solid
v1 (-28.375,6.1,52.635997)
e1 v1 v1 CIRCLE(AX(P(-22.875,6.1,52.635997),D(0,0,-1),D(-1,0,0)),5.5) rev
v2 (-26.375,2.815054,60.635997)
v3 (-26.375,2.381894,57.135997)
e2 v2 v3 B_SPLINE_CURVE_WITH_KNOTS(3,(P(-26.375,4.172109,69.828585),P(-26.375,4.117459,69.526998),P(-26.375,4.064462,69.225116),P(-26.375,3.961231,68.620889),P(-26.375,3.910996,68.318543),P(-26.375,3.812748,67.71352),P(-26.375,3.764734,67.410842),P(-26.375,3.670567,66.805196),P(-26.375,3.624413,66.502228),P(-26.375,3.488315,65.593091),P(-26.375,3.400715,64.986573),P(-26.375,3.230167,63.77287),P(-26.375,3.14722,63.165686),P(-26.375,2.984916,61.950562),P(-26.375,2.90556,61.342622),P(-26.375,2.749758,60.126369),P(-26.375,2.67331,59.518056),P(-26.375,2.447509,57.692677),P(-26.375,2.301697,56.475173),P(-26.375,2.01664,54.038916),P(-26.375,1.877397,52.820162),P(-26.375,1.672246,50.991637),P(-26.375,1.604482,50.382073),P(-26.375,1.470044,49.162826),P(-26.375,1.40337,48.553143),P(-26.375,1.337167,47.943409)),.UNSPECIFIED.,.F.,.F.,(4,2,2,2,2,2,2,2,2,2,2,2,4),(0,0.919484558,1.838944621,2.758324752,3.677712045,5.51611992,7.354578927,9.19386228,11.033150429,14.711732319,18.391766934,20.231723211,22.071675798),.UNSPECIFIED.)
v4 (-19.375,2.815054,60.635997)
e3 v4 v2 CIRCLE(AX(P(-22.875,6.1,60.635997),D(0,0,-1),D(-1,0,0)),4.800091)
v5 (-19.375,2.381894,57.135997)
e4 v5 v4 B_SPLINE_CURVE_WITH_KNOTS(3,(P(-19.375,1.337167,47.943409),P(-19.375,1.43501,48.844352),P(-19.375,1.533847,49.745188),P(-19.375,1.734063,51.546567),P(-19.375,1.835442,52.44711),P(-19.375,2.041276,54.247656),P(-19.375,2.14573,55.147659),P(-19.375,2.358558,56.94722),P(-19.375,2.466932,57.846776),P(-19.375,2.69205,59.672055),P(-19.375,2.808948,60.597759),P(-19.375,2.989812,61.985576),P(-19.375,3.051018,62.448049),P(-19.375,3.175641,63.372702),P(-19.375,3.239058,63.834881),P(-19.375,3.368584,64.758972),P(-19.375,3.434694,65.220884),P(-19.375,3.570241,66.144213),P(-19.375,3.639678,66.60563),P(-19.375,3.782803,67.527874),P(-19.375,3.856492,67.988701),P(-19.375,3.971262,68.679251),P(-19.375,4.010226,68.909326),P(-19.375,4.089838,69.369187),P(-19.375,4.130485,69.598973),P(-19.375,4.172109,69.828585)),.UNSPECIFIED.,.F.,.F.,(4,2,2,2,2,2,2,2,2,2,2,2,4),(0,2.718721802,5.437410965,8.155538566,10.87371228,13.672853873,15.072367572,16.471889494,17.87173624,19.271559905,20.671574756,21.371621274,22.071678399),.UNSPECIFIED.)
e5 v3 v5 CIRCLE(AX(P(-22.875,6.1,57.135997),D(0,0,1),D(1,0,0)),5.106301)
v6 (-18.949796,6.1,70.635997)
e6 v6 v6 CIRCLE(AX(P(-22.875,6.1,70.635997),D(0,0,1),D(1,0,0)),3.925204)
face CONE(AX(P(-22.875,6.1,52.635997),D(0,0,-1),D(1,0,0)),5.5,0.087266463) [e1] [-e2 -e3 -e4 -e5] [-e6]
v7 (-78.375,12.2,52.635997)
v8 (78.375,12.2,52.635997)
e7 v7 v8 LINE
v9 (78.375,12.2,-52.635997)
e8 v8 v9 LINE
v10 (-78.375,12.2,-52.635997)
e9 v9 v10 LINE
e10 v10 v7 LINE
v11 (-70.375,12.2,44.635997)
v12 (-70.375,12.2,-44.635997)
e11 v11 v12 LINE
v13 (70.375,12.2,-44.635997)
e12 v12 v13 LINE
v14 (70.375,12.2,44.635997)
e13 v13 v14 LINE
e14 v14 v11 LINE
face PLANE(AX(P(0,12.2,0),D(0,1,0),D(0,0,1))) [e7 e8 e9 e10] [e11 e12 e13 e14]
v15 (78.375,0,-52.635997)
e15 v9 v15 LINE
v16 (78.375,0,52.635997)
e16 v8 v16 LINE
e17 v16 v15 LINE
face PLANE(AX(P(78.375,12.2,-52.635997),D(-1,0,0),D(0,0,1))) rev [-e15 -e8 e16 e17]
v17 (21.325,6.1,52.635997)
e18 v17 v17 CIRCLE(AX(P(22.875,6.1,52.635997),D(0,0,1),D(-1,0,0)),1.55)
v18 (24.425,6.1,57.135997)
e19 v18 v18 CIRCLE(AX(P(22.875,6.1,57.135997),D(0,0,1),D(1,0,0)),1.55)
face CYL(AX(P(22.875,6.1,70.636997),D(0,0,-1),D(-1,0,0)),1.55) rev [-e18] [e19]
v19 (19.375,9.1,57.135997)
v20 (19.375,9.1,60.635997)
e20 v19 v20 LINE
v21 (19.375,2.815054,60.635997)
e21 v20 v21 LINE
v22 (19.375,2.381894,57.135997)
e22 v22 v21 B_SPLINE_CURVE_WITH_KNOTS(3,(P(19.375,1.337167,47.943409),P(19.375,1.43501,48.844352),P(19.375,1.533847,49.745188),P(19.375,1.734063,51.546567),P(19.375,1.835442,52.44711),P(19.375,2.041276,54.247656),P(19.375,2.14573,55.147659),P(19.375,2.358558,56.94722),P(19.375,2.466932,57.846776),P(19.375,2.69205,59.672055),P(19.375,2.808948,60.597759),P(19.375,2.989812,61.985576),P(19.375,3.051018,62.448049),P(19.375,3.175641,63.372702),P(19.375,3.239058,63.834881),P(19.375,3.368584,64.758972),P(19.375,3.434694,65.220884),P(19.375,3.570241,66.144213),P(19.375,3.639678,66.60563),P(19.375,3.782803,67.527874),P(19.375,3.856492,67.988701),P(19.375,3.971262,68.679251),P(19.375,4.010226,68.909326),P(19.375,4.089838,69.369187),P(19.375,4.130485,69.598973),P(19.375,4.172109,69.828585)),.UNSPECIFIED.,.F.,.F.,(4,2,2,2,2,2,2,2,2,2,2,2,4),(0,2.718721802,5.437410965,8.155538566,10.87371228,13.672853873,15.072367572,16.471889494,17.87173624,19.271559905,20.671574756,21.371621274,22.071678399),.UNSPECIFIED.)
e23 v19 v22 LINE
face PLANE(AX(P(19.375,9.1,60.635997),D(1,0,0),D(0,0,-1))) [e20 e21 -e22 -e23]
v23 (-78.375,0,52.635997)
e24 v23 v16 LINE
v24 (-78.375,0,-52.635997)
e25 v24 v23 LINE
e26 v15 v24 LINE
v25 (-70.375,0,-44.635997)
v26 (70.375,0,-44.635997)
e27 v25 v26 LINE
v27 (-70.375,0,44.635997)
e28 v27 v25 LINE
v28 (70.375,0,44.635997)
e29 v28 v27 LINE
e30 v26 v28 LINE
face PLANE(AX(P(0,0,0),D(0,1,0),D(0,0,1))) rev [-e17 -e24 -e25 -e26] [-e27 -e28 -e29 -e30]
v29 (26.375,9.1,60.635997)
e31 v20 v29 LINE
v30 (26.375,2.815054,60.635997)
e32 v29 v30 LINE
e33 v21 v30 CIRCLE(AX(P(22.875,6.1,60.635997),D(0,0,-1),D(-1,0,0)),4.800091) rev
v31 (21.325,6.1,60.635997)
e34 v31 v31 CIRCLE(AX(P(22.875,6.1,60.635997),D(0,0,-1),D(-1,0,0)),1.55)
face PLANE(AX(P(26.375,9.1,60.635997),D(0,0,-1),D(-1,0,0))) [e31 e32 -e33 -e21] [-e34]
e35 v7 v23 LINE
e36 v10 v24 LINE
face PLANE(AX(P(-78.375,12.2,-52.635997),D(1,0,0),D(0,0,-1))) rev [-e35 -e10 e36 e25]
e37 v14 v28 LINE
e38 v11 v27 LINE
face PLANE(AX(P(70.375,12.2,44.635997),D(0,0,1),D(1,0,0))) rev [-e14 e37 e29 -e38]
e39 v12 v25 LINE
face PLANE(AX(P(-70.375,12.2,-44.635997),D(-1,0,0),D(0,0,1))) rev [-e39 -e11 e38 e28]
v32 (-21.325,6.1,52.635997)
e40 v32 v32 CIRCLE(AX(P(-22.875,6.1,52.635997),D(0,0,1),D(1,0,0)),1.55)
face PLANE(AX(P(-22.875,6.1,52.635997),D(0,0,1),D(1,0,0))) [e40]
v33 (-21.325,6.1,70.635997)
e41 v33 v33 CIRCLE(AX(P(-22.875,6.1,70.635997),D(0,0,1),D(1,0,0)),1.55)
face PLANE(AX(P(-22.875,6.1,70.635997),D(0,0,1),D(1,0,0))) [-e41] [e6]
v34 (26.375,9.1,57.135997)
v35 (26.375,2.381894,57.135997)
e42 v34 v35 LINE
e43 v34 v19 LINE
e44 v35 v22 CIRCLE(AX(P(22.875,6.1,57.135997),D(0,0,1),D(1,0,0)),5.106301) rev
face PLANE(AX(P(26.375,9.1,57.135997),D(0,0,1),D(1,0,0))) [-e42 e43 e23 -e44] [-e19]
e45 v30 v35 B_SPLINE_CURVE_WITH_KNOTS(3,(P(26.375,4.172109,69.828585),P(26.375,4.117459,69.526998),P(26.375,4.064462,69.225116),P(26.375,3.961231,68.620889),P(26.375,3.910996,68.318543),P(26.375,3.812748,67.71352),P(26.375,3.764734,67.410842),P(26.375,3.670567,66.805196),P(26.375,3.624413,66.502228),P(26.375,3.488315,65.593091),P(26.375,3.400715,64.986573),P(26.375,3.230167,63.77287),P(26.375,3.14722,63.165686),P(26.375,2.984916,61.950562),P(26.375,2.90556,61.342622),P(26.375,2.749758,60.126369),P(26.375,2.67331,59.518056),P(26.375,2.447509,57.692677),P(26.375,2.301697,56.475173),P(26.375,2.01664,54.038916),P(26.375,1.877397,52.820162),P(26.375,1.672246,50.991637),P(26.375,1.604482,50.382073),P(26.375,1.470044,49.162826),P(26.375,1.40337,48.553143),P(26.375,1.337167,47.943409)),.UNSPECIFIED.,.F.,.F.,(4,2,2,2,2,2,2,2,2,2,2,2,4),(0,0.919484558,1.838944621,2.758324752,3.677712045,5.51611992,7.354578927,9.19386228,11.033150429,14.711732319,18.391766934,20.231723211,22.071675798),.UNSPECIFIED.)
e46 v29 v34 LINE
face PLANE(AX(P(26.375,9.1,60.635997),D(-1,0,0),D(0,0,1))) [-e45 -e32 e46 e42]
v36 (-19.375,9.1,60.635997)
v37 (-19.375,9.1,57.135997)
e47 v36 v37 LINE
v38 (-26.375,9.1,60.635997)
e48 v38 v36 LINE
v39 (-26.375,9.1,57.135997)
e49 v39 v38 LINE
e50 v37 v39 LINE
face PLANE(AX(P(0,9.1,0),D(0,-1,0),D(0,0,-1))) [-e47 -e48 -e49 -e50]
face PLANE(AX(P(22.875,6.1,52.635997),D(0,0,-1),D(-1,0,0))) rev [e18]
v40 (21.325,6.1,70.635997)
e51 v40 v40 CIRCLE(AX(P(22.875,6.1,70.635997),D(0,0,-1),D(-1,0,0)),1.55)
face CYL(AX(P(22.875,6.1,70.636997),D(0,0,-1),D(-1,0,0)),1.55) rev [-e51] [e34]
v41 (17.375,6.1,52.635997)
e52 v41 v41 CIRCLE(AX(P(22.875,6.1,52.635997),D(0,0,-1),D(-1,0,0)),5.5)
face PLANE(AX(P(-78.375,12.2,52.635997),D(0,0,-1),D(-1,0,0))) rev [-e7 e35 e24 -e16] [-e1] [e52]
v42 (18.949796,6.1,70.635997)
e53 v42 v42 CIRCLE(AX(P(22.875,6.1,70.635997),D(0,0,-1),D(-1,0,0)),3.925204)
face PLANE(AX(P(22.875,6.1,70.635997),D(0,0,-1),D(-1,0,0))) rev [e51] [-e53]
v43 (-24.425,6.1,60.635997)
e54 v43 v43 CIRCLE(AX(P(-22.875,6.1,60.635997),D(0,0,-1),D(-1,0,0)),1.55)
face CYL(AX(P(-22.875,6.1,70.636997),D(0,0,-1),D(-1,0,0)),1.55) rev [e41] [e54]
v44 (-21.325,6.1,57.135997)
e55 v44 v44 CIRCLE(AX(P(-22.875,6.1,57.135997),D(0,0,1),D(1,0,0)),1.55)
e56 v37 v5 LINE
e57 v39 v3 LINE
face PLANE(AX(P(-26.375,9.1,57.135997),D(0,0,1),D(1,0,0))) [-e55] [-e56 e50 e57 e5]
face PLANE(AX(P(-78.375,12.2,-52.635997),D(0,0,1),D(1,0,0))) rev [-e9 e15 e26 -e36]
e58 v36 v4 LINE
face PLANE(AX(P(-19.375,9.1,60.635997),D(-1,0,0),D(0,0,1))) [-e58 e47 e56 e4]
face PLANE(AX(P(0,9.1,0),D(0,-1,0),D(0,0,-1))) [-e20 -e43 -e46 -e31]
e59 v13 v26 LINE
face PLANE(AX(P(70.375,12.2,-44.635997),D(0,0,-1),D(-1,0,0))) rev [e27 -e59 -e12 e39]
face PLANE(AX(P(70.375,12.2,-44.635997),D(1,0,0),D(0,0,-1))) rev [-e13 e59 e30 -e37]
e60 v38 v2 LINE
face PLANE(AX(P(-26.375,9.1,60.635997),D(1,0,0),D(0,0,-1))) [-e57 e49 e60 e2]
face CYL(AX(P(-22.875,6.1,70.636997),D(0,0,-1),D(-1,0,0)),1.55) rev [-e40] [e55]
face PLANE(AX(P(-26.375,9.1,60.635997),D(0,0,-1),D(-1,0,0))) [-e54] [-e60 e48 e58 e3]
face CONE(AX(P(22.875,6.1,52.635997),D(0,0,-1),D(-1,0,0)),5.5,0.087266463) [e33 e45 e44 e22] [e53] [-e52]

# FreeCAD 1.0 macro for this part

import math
import FreeCAD as App
import Part
import Sketcher


def add_polygon(sketch, points):
    """Adds a closed chain of lines whose ends are joined by coincident constraints."""
    first, n = sketch.GeometryCount, len(points)
    for a, b in zip(points, points[1:] + points[:1]):
        sketch.addGeometry(Part.LineSegment(App.Vector(*a, 0), App.Vector(*b, 0)), False)
    for i in range(n):
        sketch.addConstraint(Sketcher.Constraint("Coincident", first + i, 2, first + (i + 1) % n, 1))

doc = App.newDocument("Part")
body = doc.addObject("PartDesign::Body", "Body")

# Sketch on XZ plane
sketch1 = doc.addObject("Sketcher::SketchObject", "Sketch")
body.addObject(sketch1)
sketch1.AttachmentSupport = (doc.XZ_Plane, [""])
sketch1.MapMode = "FlatFace"
add_polygon(sketch1, [(-78.375, -52.635997), (-78.375, 52.635997), (78.375, 52.635997), (78.375, -52.635997)])  # lines 0-3
sketch1.addConstraint([
    Sketcher.Constraint("Vertical", 0),
    Sketcher.Constraint("Horizontal", 1),
    Sketcher.Constraint("Vertical", 2),
    Sketcher.Constraint("Horizontal", 3),
    Sketcher.Constraint("Symmetric", 0, 2, 2, 2, -1, 1),
    Sketcher.Constraint("DistanceX", 1, 1, 1, 2, 156.75),
    Sketcher.Constraint("DistanceY", 0, 1, 0, 2, 105.271995),
])
pad1 = doc.addObject("PartDesign::Pad", "Pad")
body.addObject(pad1)
pad1.Profile = sketch1
pad1.Length = 12.2
pad1.Reversed = True

# Sketch on XZ plane
sketch2 = doc.addObject("Sketcher::SketchObject", "Sketch001")
body.addObject(sketch2)
sketch2.AttachmentSupport = (doc.XZ_Plane, [""])
sketch2.MapMode = "FlatFace"
sketch2.AttachmentOffset = App.Placement(App.Vector(0, 0, -12.2), App.Rotation())
sketch2.addGeometry([
    Part.ArcOfCircle(Part.Circle(App.Vector(-40.196209, -12.400448, 0), App.Vector(0, 0, 1), 4.1), math.radians(-158.694493), math.radians(-21.305507)),  # 0
    Part.LineSegment(App.Vector(-44.016, -13.890145, 0), App.Vector(-44.016, -0.000003, 0)),  # 1
    Part.ArcOfCircle(Part.Circle(App.Vector(-40.196209, -1.4897, 0), App.Vector(0, 0, 1), 4.1), math.radians(21.305507), math.radians(158.694493)),  # 2
    Part.LineSegment(App.Vector(-36.376418, -0.000003, 0), App.Vector(-36.376418, -13.890145, 0)),  # 3
    Part.ArcOfCircle(Part.Circle(App.Vector(40.196209, -12.400448, 0), App.Vector(0, 0, 1), 4.1), math.radians(-158.694493), math.radians(-21.305507)),  # 4
    Part.LineSegment(App.Vector(36.376418, -13.890145, 0), App.Vector(36.376418, -0.000003, 0)),  # 5
    Part.ArcOfCircle(Part.Circle(App.Vector(40.196209, -1.4897, 0), App.Vector(0, 0, 1), 4.1), math.radians(21.305507), math.radians(158.694493)),  # 6
    Part.LineSegment(App.Vector(44.016, -0.000003, 0), App.Vector(44.016, -13.890145, 0)),  # 7
], False)
sketch2.addConstraint([
    Sketcher.Constraint("Coincident", 0, 1, 1, 1),
    Sketcher.Constraint("Coincident", 1, 2, 2, 2),
    Sketcher.Constraint("Coincident", 2, 1, 3, 1),
    Sketcher.Constraint("Coincident", 3, 2, 0, 2),
    Sketcher.Constraint("Coincident", 4, 1, 5, 1),
    Sketcher.Constraint("Coincident", 5, 2, 6, 2),
    Sketcher.Constraint("Coincident", 6, 1, 7, 1),
    Sketcher.Constraint("Coincident", 7, 2, 4, 2),
    Sketcher.Constraint("Vertical", 1),
    Sketcher.Constraint("Vertical", 3),
    Sketcher.Constraint("Vertical", 5),
    Sketcher.Constraint("Vertical", 7),
    Sketcher.Constraint("Equal", 0, 2),
    Sketcher.Constraint("Equal", 2, 4),
    Sketcher.Constraint("Equal", 4, 6),
    Sketcher.Constraint("Symmetric", 2, 1, 5, 2, -1, 1),
    Sketcher.Constraint("Symmetric", 1, 2, 6, 1, -1, 1),
    Sketcher.Constraint("Symmetric", 0, 3, 4, 3, -2),
    Sketcher.Constraint("Symmetric", 2, 3, 6, 3, -2),
    Sketcher.Constraint("Horizontal", 0, 1, 3, 2),
    Sketcher.Constraint("Radius", 0, 4.1),
    Sketcher.Constraint("DistanceX", 0, 1, -1, 1, 44.016),
    Sketcher.Constraint("DistanceY", 2, 3, -1, 1, 1.4897),
    Sketcher.Constraint("DistanceY", 1, 1, 1, 2, 13.890142),
])
pocket1 = doc.addObject("PartDesign::Pocket", "Pocket")
body.addObject(pocket1)
pocket1.Profile = sketch2
pocket1.Length = 6.1
pocket1.Reversed = True

# Sketch on XY plane
sketch3 = doc.addObject("Sketcher::SketchObject", "Sketch002")
body.addObject(sketch3)
sketch3.AttachmentSupport = (doc.XY_Plane, [""])
sketch3.MapMode = "FlatFace"
sketch3.AttachmentOffset = App.Placement(App.Vector(0, 0, 52.635997), App.Rotation())
sketch3.addGeometry([
    Part.Circle(App.Vector(-22.875, 6.1, 0), App.Vector(0, 0, 1), 5.5),
    Part.Circle(App.Vector(22.875, 6.1, 0), App.Vector(0, 0, 1), 5.5),
], False)
sketch3.addConstraint([
    Sketcher.Constraint("Equal", 0, 1),
    Sketcher.Constraint("Symmetric", 0, 3, 1, 3, -2),
    Sketcher.Constraint("Diameter", 0, 11.0),
    Sketcher.Constraint("DistanceY", -1, 1, 0, 3, 6.1),
    Sketcher.Constraint("DistanceX", 0, 3, 1, 3, 45.75),
])
pad2 = doc.addObject("PartDesign::Pad", "Pad001")
body.addObject(pad2)
pad2.Profile = sketch3
pad2.Length = 18
pad2.TaperAngle = -5

# Sketch on XY plane
sketch4 = doc.addObject("Sketcher::SketchObject", "Sketch003")
body.addObject(sketch4)
sketch4.AttachmentSupport = (doc.XY_Plane, [""])
sketch4.MapMode = "FlatFace"
sketch4.AttachmentOffset = App.Placement(App.Vector(0, 0, 52.635997), App.Rotation())
sketch4.addGeometry(Part.Circle(App.Vector(-22.875, 6.1, 0), App.Vector(0, 0, 1), 1.55), False)
sketch4.addConstraint([
    Sketcher.Constraint("Diameter", 0, 3.1),
    Sketcher.Constraint("DistanceY", -1, 1, 0, 3, 6.1),
    Sketcher.Constraint("DistanceX", 0, 3, -1, 1, 22.875),
])
pocket2 = doc.addObject("PartDesign::Pocket", "Pocket001")
body.addObject(pocket2)
pocket2.Profile = sketch4
pocket2.Type = "UpToFirst"
pocket2.Reversed = True

# Sketch on XY plane
sketch5 = doc.addObject("Sketcher::SketchObject", "Sketch004")
body.addObject(sketch5)
sketch5.AttachmentSupport = (doc.XY_Plane, [""])
sketch5.MapMode = "FlatFace"
sketch5.AttachmentOffset = App.Placement(App.Vector(0, 0, 52.635997), App.Rotation())
sketch5.addGeometry(Part.Circle(App.Vector(22.875, 6.1, 0), App.Vector(0, 0, 1), 1.55), False)
sketch5.addConstraint([
    Sketcher.Constraint("Diameter", 0, 3.1),
    Sketcher.Constraint("DistanceY", -1, 1, 0, 3, 6.1),
    Sketcher.Constraint("DistanceX", -1, 1, 0, 3, 22.875),
])
pocket3 = doc.addObject("PartDesign::Pocket", "Pocket002")
body.addObject(pocket3)
pocket3.Profile = sketch5
pocket3.Type = "UpToFirst"
pocket3.Reversed = True

# Sketch on XZ plane
sketch6 = doc.addObject("Sketcher::SketchObject", "Sketch005")
body.addObject(sketch6)
sketch6.AttachmentSupport = (doc.XZ_Plane, [""])
sketch6.MapMode = "FlatFace"
add_polygon(sketch6, [(-26.375, 57.135997), (-26.375, 60.635997), (-19.375, 60.635997), (-19.375, 57.135997)])  # lines 0-3
add_polygon(sketch6, [(19.375, 57.135997), (19.375, 60.635997), (26.375, 60.635997), (26.375, 57.135997)])  # lines 4-7
sketch6.addConstraint([
    Sketcher.Constraint("Vertical", 0),
    Sketcher.Constraint("Horizontal", 1),
    Sketcher.Constraint("Vertical", 2),
    Sketcher.Constraint("Horizontal", 3),
    Sketcher.Constraint("Vertical", 4),
    Sketcher.Constraint("Horizontal", 5),
    Sketcher.Constraint("Vertical", 6),
    Sketcher.Constraint("Horizontal", 7),
    Sketcher.Constraint("Symmetric", 1, 2, 4, 2, -2),
    Sketcher.Constraint("Symmetric", 3, 2, 6, 2, -2),
    Sketcher.Constraint("DistanceX", 1, 1, 1, 2, 7.0),
    Sketcher.Constraint("DistanceY", 0, 1, 0, 2, 3.5),
    Sketcher.Constraint("DistanceX", 1, 2, 4, 2, 38.75),
    Sketcher.Constraint("DistanceY", -1, 1, 0, 2, 60.635997),
])
pocket4 = doc.addObject("PartDesign::Pocket", "Pocket003")
body.addObject(pocket4)
pocket4.Profile = sketch6
pocket4.Length = 9.1

# Sketch on XZ plane
sketch7 = doc.addObject("Sketcher::SketchObject", "Sketch006")
body.addObject(sketch7)
sketch7.AttachmentSupport = (doc.XZ_Plane, [""])
sketch7.MapMode = "FlatFace"
add_polygon(sketch7, [(70.375, -44.635997), (70.375, 44.635997), (-70.375, 44.635997), (-70.375, -44.635997)])  # lines 0-3
sketch7.addConstraint([
    Sketcher.Constraint("Vertical", 0),
    Sketcher.Constraint("Horizontal", 1),
    Sketcher.Constraint("Vertical", 2),
    Sketcher.Constraint("Horizontal", 3),
    Sketcher.Constraint("Symmetric", 0, 2, 2, 2, -1, 1),
    Sketcher.Constraint("DistanceX", 1, 2, 1, 1, 140.75),
    Sketcher.Constraint("DistanceY", 0, 1, 0, 2, 89.271995),
])
pocket5 = doc.addObject("PartDesign::Pocket", "Pocket004")
body.addObject(pocket5)
pocket5.Profile = sketch7
pocket5.Type = "ThroughAll"

doc.recompute()
